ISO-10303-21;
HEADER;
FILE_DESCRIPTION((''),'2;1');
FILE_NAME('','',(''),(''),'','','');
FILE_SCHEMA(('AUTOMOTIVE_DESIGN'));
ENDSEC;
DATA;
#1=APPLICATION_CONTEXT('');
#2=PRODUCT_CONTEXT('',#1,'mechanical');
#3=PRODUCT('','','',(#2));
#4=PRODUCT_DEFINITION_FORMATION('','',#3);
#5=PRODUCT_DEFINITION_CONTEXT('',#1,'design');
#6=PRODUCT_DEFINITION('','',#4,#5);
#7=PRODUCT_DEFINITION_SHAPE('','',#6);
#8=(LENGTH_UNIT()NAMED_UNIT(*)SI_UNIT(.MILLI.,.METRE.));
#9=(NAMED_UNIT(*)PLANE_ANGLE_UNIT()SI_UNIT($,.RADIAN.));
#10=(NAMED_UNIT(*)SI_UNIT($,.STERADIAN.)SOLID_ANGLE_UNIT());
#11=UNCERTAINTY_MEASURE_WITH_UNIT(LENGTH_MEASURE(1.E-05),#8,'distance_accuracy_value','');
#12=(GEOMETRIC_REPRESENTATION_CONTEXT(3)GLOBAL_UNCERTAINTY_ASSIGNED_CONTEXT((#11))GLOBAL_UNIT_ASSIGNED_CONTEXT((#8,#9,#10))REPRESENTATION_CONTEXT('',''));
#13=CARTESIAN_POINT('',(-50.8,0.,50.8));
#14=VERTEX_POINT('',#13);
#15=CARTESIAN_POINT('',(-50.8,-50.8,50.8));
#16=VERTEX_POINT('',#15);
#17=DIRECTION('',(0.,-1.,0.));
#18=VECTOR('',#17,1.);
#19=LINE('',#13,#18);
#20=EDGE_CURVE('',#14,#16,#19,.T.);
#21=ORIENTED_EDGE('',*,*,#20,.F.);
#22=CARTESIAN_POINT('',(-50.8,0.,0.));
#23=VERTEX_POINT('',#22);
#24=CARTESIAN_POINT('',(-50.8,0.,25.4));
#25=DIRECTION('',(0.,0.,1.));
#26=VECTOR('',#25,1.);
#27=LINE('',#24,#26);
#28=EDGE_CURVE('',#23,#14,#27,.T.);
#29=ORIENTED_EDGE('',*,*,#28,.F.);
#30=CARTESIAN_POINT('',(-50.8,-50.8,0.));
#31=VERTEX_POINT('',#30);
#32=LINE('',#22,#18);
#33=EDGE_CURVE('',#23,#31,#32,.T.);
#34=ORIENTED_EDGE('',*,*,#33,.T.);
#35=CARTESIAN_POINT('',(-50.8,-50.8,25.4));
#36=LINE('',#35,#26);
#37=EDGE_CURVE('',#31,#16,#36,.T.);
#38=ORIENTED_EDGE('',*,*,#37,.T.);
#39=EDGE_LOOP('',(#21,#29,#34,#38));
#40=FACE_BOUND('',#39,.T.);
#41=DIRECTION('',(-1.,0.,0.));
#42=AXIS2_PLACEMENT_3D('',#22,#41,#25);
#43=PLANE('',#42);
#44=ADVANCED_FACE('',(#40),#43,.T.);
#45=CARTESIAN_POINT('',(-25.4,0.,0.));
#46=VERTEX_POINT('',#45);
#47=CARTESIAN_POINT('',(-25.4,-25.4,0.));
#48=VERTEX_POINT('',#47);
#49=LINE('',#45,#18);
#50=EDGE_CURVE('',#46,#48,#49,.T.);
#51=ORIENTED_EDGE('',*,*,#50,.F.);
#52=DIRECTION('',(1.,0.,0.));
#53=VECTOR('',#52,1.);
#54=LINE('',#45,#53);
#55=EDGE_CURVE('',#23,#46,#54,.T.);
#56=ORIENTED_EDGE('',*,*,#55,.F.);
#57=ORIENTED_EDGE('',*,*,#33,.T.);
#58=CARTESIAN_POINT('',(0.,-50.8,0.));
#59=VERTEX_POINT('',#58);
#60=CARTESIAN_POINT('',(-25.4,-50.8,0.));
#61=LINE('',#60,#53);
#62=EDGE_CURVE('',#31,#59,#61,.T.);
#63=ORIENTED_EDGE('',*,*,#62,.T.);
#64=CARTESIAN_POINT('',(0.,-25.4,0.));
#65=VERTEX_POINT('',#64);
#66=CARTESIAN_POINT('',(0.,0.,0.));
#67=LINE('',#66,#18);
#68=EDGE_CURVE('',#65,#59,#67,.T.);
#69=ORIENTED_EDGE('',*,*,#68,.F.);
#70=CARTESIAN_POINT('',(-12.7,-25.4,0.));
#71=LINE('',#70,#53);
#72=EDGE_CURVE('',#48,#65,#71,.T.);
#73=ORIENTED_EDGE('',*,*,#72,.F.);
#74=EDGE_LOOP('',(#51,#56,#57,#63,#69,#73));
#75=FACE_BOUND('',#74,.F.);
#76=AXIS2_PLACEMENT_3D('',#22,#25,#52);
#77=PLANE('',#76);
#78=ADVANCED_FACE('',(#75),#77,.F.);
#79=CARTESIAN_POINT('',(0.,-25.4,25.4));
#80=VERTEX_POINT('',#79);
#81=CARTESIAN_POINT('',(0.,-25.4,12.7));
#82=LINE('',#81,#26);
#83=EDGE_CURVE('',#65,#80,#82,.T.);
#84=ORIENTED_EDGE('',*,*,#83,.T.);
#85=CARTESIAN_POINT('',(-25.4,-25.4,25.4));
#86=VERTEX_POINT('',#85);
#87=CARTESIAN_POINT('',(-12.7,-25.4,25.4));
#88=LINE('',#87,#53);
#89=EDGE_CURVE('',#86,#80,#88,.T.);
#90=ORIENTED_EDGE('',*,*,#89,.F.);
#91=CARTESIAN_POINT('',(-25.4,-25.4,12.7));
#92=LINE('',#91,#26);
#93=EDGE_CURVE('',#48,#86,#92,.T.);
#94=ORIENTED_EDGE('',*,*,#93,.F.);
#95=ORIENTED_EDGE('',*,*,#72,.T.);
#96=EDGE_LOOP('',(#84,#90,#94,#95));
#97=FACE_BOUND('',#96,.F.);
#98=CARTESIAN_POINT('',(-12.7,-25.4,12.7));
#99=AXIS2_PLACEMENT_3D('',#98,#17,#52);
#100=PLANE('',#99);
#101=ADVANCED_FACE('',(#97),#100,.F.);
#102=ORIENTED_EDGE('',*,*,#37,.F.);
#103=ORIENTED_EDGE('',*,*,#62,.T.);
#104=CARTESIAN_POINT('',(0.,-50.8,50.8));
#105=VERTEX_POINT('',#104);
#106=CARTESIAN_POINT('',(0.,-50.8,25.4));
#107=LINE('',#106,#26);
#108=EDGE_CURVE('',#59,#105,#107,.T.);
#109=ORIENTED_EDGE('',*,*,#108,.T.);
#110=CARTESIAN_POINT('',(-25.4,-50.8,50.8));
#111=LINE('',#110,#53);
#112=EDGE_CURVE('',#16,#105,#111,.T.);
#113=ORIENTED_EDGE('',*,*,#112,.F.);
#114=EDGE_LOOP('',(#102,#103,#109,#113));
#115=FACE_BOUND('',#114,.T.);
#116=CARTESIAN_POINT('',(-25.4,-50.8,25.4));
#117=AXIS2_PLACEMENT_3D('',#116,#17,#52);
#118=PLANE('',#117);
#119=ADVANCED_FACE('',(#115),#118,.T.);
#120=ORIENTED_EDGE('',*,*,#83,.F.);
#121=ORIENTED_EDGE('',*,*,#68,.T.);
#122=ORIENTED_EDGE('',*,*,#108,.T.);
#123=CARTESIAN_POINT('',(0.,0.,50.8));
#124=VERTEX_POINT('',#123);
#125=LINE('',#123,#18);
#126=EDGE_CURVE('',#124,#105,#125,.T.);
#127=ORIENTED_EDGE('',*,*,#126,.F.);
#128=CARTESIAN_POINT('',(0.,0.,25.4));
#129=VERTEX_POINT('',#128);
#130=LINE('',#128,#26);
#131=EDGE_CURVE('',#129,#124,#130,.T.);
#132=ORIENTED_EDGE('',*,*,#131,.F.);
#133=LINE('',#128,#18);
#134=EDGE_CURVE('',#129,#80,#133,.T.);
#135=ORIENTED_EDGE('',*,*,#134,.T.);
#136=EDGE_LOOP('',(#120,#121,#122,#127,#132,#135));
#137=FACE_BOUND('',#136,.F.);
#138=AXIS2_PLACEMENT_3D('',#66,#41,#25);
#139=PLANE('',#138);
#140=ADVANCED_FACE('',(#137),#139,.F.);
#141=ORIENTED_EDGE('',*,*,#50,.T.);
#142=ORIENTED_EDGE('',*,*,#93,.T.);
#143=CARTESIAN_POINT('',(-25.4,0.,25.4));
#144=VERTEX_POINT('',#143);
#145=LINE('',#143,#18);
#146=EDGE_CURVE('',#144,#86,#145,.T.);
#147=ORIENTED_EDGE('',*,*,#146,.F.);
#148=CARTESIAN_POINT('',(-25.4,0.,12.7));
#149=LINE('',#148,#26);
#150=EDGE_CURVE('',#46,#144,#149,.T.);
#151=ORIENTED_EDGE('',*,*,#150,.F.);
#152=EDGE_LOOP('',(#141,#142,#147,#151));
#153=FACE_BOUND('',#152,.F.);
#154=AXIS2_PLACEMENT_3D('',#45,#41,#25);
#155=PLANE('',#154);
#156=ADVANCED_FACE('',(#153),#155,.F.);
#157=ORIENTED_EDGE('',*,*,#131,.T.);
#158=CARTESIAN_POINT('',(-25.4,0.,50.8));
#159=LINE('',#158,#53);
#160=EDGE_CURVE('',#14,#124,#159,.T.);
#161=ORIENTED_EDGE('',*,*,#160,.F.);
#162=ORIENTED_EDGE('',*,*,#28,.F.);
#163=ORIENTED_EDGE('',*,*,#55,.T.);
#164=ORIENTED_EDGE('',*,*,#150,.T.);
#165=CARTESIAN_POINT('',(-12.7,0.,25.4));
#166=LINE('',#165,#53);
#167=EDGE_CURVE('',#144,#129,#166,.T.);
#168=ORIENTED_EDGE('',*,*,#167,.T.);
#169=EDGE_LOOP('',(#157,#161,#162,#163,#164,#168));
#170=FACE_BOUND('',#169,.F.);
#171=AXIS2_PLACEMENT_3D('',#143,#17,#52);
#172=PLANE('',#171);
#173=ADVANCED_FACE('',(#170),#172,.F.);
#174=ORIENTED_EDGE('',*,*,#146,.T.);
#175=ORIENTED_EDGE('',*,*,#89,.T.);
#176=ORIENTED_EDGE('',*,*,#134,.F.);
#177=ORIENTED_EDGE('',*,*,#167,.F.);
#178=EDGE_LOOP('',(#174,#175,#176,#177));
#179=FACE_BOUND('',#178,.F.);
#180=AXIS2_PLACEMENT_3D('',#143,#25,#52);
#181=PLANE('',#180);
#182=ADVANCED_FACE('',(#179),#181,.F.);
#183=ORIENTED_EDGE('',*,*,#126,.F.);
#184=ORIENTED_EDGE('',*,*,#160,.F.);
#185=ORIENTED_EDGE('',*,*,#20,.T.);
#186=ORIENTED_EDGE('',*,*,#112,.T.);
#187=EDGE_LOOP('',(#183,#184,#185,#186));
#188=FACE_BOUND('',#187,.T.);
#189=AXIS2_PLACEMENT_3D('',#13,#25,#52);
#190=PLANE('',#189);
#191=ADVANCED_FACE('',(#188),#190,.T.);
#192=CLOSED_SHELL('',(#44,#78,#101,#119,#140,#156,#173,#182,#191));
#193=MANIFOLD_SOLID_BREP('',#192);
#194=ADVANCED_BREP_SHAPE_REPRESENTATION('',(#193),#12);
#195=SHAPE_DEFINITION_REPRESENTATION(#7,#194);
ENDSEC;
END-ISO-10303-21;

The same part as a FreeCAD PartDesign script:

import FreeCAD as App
import Part
import Sketcher
from FreeCAD import Vector
Q = App.Units.Quantity

doc = App.newDocument("Part")
body = doc.addObject("PartDesign::Body", "Body")

sketch1 = body.newObject("Sketcher::SketchObject", "Sketch")
sketch1.AttachmentSupport = (doc.getObject("XZ_Plane"), [""])
sketch1.MapMode = "FlatFace"
sketch1.addGeometry([
    Part.LineSegment(Vector(-51, 51, 0), Vector(-51, 0, 0)),
    Part.LineSegment(Vector(-51, 0, 0), Vector(0, 0, 0)),
    Part.LineSegment(Vector(0, 0, 0), Vector(0, 51, 0)),
    Part.LineSegment(Vector(0, 51, 0), Vector(-51, 51, 0)),
], False)
sketch1.addConstraint([
    Sketcher.Constraint("Coincident", 0, 2, 1, 1),
    Sketcher.Constraint("Coincident", 1, 2, 2, 1),
    Sketcher.Constraint("Coincident", 2, 2, 3, 1),
    Sketcher.Constraint("Coincident", 3, 2, 0, 1),
    Sketcher.Constraint("Vertical", 0),
    Sketcher.Constraint("Horizontal", 1),
    Sketcher.Constraint("Vertical", 2),
    Sketcher.Constraint("Horizontal", 3),
    Sketcher.Constraint("Coincident", 1, 2, -1, 1),
    Sketcher.Constraint("Equal", 3, 0),
    Sketcher.Constraint("DistanceX", 1, 1, 1, 2, Q("2 in")),
])
pad1 = body.newObject("PartDesign::Pad", "Pad")
pad1.Profile = sketch1
pad1.Length = Q("2 in")

sketch2 = body.newObject("Sketcher::SketchObject", "Sketch001")
sketch2.AttachmentSupport = (doc.getObject("XZ_Plane"), [""])
sketch2.MapMode = "FlatFace"
sketch2.addGeometry([
    Part.LineSegment(Vector(-25, 25, 0), Vector(-25, 0, 0)),
    Part.LineSegment(Vector(-25, 0, 0), Vector(0, 0, 0)),
    Part.LineSegment(Vector(0, 0, 0), Vector(0, 25, 0)),
    Part.LineSegment(Vector(0, 25, 0), Vector(-25, 25, 0)),
], False)
sketch2.addConstraint([
    Sketcher.Constraint("Coincident", 0, 2, 1, 1),
    Sketcher.Constraint("Coincident", 1, 2, 2, 1),
    Sketcher.Constraint("Coincident", 2, 2, 3, 1),
    Sketcher.Constraint("Coincident", 3, 2, 0, 1),
    Sketcher.Constraint("Vertical", 0),
    Sketcher.Constraint("Horizontal", 1),
    Sketcher.Constraint("Vertical", 2),
    Sketcher.Constraint("Horizontal", 3),
    Sketcher.Constraint("Coincident", 1, 2, -1, 1),
    Sketcher.Constraint("Equal", 3, 0),
    Sketcher.Constraint("DistanceX", 1, 1, 1, 2, Q("1 in")),
])
pocket1 = body.newObject("PartDesign::Pocket", "Pocket")
pocket1.Profile = sketch2
pocket1.Length = Q("1 in")
pocket1.Reversed = True

doc.recompute()
